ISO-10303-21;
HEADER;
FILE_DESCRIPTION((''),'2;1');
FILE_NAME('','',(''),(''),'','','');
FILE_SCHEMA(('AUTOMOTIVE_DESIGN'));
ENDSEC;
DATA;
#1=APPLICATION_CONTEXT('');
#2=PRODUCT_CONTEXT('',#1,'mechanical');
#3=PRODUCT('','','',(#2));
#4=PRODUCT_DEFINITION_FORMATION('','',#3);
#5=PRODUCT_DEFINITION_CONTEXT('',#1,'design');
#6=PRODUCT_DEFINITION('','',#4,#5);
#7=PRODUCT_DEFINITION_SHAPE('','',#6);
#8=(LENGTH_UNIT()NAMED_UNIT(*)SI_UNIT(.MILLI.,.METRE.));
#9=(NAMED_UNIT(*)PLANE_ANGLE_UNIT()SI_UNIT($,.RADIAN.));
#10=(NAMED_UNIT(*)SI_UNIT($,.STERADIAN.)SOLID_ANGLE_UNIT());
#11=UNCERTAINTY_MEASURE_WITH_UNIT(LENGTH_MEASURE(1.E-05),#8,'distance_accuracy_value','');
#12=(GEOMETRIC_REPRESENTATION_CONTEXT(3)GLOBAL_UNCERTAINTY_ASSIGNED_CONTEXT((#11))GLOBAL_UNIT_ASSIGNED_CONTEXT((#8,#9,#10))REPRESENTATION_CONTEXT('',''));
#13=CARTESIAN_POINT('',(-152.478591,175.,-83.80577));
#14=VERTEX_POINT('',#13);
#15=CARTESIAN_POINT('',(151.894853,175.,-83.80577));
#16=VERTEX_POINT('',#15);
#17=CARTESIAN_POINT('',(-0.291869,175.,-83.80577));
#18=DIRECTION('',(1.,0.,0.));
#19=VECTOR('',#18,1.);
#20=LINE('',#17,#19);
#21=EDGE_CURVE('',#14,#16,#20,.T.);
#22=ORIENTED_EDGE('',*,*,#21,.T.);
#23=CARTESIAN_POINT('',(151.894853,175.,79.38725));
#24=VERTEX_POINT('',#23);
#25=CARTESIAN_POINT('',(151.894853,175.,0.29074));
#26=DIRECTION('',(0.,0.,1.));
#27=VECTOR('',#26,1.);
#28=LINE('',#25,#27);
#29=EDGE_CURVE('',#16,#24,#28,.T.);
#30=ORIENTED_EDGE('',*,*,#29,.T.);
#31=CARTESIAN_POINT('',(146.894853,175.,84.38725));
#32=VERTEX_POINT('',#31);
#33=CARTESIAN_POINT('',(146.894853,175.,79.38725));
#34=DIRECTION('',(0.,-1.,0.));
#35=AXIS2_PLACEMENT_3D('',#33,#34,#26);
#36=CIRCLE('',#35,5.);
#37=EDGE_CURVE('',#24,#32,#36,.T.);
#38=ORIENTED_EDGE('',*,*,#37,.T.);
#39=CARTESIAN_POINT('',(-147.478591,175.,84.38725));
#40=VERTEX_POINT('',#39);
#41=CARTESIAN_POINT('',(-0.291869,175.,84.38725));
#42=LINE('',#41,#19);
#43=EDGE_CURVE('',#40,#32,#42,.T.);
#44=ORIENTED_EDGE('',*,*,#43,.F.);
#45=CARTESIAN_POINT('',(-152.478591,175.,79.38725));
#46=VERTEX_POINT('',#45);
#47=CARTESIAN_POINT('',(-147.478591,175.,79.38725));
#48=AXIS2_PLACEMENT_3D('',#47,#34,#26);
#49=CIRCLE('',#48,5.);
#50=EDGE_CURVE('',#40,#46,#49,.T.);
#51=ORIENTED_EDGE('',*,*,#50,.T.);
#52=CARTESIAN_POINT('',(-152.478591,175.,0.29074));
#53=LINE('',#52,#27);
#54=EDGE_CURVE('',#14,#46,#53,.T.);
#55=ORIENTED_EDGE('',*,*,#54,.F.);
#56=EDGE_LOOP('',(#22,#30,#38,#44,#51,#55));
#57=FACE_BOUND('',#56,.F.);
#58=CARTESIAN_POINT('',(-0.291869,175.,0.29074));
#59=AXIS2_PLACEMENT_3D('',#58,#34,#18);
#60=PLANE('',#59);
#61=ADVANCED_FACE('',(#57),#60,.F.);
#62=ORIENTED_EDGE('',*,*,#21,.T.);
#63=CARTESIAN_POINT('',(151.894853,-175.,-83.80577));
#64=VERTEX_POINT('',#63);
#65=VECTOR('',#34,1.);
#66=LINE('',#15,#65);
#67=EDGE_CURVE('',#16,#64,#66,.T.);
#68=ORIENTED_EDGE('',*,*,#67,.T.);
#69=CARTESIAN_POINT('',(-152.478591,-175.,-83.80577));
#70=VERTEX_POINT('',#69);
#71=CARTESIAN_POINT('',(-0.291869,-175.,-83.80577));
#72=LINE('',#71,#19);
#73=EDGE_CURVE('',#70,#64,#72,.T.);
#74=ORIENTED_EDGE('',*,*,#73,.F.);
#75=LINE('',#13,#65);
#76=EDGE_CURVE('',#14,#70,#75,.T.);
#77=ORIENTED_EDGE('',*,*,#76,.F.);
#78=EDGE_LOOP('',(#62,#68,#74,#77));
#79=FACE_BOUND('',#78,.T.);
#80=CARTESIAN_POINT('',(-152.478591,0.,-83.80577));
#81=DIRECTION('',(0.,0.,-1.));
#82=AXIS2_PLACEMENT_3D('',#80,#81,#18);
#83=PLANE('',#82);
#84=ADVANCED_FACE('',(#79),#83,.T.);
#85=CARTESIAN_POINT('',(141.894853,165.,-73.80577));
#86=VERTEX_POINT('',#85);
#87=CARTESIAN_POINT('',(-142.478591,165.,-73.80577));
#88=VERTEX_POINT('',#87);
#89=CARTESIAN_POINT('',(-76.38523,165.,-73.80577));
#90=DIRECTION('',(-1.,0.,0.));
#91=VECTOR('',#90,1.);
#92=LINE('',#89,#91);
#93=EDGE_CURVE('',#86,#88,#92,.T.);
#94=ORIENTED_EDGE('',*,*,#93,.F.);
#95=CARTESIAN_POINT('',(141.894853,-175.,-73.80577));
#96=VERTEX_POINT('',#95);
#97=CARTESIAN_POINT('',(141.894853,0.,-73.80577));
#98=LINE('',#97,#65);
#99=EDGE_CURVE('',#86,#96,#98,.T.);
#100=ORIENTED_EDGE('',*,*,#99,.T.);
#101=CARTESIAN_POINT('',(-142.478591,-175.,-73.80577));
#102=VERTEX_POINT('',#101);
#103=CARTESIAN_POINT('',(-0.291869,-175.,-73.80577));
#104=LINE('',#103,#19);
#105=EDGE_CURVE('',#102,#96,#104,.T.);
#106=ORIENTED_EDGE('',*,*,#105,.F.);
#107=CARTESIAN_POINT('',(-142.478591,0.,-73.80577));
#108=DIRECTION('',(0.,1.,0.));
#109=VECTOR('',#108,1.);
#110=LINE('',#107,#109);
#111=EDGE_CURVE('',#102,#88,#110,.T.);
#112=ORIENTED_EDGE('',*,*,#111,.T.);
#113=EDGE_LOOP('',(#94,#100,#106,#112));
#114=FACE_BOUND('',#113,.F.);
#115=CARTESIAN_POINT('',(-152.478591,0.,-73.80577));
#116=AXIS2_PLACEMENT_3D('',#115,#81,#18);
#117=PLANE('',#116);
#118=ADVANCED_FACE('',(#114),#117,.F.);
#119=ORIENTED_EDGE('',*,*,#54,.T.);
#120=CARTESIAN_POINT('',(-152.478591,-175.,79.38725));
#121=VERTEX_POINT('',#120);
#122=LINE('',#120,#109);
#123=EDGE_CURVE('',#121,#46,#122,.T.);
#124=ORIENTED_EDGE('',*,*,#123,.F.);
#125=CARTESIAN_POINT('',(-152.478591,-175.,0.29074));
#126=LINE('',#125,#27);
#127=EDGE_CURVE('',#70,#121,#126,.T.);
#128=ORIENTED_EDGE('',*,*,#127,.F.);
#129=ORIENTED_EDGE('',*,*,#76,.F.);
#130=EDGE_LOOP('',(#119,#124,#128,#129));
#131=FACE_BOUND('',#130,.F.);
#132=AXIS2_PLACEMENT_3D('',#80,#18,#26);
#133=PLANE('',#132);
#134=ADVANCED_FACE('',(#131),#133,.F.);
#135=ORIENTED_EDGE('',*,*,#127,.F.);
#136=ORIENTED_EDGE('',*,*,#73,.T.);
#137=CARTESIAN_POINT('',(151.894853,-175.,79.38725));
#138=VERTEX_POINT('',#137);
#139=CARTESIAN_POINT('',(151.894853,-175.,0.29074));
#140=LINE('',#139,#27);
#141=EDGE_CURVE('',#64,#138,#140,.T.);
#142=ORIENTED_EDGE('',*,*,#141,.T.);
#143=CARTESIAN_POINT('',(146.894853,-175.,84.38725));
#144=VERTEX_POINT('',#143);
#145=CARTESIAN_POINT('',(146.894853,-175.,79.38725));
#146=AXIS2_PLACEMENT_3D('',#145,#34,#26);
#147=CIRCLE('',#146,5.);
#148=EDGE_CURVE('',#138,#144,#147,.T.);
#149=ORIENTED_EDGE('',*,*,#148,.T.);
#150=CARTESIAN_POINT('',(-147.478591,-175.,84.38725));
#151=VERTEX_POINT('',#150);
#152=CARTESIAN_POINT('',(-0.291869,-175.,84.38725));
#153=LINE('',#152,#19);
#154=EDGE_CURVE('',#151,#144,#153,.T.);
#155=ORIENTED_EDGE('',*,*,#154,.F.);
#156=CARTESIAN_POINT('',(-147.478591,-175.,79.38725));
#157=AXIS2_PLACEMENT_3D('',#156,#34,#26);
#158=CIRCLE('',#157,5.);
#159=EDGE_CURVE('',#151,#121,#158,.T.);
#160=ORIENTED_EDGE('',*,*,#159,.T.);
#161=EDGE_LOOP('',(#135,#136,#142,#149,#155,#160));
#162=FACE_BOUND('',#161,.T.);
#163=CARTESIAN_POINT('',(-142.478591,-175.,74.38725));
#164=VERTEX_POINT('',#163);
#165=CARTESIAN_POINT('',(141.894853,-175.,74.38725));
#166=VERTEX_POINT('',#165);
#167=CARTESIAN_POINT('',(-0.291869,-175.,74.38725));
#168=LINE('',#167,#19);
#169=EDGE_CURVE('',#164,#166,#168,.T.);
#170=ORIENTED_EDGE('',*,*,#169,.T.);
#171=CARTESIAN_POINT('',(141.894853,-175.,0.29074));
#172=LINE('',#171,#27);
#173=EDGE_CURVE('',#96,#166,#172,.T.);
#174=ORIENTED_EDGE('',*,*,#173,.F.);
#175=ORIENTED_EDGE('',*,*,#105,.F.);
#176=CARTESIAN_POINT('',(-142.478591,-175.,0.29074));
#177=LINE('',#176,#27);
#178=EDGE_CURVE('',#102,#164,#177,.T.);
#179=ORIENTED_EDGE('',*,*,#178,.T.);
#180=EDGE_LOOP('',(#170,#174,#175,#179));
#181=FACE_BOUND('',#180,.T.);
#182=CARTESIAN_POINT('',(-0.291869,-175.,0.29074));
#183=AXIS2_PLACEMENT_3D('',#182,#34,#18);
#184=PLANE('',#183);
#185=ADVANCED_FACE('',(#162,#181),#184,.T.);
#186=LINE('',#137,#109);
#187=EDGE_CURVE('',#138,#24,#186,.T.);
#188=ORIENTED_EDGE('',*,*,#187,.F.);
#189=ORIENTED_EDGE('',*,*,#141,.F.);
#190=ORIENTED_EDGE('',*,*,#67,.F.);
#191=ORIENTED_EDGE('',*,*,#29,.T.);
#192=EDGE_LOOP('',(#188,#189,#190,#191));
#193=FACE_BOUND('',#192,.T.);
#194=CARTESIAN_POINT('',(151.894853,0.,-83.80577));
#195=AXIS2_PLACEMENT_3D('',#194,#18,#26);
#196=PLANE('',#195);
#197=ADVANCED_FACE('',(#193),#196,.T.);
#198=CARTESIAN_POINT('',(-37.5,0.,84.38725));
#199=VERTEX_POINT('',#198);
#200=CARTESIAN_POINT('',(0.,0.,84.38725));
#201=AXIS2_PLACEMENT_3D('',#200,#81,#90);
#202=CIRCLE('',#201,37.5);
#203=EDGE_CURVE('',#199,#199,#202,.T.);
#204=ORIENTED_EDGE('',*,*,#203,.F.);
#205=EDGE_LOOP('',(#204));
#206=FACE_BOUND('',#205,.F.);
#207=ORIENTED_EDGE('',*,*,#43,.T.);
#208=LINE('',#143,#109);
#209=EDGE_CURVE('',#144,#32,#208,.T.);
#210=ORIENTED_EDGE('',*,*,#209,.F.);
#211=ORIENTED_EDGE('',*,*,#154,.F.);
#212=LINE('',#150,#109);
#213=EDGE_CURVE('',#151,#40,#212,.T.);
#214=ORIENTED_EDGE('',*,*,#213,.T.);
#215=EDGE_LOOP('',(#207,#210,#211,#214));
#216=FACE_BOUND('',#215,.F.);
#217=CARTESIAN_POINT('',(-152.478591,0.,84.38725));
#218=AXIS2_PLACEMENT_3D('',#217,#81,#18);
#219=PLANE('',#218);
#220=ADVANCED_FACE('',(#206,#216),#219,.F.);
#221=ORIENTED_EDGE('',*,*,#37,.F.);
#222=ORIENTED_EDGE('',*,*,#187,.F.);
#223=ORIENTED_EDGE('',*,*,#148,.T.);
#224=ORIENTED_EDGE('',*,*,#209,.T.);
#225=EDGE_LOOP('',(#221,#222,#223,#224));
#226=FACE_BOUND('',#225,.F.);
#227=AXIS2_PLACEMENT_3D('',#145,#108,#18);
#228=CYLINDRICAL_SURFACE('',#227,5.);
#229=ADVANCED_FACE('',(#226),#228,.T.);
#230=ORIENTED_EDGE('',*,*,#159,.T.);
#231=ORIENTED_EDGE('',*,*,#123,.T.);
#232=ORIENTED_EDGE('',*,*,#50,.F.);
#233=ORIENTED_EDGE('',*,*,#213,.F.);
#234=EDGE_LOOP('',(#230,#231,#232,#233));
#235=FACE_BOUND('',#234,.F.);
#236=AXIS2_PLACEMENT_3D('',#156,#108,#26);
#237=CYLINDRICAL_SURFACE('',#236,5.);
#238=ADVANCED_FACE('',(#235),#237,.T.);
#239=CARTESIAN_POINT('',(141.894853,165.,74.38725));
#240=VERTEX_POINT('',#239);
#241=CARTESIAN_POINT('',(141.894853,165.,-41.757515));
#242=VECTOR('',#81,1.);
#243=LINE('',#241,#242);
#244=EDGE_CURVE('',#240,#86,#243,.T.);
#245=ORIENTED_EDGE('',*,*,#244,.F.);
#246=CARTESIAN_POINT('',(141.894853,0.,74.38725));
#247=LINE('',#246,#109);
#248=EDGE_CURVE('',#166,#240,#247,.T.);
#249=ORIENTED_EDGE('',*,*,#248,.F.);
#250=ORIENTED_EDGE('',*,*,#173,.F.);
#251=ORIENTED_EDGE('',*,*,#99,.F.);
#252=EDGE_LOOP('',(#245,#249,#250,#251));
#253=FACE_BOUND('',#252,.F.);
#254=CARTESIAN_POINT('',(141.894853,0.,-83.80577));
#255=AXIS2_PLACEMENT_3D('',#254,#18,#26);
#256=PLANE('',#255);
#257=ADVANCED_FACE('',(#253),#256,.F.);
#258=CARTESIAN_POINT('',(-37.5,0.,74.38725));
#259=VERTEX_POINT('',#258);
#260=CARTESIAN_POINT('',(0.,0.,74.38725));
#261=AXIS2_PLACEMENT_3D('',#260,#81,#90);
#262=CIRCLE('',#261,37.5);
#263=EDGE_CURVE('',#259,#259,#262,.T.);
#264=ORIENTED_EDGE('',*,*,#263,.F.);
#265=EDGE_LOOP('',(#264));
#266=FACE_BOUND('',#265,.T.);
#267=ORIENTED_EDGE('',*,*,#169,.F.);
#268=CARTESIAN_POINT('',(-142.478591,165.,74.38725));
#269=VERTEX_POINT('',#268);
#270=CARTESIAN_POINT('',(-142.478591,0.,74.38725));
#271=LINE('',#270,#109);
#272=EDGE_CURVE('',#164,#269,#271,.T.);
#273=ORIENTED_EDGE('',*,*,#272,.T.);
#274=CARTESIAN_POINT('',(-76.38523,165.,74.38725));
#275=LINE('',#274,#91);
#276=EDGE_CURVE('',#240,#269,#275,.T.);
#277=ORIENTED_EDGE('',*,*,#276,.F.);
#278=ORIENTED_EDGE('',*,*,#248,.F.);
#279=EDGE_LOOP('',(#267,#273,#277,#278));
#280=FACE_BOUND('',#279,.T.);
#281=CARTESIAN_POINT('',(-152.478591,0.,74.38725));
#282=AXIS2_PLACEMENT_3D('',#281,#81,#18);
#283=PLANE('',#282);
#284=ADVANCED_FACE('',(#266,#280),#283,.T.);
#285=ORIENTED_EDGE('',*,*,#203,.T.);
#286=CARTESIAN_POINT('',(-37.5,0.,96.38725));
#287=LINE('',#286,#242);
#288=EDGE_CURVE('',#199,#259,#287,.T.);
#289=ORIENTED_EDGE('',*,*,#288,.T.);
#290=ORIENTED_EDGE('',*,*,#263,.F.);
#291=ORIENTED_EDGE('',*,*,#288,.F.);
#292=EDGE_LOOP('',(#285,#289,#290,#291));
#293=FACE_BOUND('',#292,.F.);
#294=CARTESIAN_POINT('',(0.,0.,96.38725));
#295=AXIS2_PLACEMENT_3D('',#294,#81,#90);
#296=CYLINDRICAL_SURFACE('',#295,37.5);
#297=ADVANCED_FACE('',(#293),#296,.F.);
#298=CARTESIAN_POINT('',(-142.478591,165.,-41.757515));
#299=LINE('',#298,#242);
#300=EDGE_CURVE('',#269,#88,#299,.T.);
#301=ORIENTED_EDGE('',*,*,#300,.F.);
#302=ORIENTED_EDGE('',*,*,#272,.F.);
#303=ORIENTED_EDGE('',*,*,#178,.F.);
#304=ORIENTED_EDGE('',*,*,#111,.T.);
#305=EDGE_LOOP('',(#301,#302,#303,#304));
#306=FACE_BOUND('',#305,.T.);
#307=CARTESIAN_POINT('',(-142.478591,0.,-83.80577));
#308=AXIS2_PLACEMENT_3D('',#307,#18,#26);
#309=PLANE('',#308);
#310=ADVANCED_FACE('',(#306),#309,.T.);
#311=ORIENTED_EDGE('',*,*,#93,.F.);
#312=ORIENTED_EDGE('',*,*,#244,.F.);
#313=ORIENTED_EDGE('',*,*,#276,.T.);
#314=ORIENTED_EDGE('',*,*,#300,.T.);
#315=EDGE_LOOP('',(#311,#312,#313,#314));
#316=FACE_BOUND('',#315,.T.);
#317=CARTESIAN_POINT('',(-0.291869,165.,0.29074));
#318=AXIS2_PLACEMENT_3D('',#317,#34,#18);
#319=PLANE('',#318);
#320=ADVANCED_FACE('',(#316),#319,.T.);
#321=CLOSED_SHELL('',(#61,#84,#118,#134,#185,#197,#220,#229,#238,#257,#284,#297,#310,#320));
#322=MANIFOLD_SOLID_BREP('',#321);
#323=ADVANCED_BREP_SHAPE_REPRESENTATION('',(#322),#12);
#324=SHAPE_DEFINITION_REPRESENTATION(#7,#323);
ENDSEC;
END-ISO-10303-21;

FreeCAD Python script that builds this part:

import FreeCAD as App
import Part
import Sketcher
from FreeCAD import Vector
Q = App.Units.Quantity


def edges_at(feature, points):
    """Names of the edges that pass closest to the given points."""
    edges = feature.Shape.Edges
    near = lambda p: min(range(len(edges)), key=lambda i: edges[i].distToShape(Part.Vertex(*p))[0])
    return sorted({f"Edge{near(p) + 1}" for p in points})


def faces_at(feature, points):
    """Names of the faces that lie closest to the given points."""
    faces = feature.Shape.Faces
    near = lambda p: min(range(len(faces)), key=lambda i: faces[i].distToShape(Part.Vertex(*p))[0])
    return sorted({f"Face{near(p) + 1}" for p in points})


def add_polygon(sketch, points):
    """Adds a closed chain of lines whose ends are joined by coincident constraints."""
    first, n = sketch.GeometryCount, len(points)
    for a, b in zip(points, points[1:] + points[:1]):
        sketch.addGeometry(Part.LineSegment(App.Vector(*a, 0), App.Vector(*b, 0)), False)
    for i in range(n):
        sketch.addConstraint(Sketcher.Constraint("Coincident", first + i, 2, first + (i + 1) % n, 1))

doc = App.newDocument("Part")
body = doc.addObject("PartDesign::Body", "Body")

# Sketch on XZ plane
sketch1 = body.newObject("Sketcher::SketchObject", "Sketch")
sketch1.AttachmentSupport = (doc.getObject("XZ_Plane"), [""])
sketch1.MapMode = "FlatFace"
add_polygon(sketch1, [(-152, 84), (-152, -84), (152, -84), (152, 84)])  # lines 0-3
sketch1.addConstraint([
    Sketcher.Constraint("Vertical", 0),
    Sketcher.Constraint("Horizontal", 1),
    Sketcher.Constraint("Vertical", 2),
    Sketcher.Constraint("Horizontal", 3),
    Sketcher.Constraint("DistanceY", 0, 2, 0, 1, Q("168.19302 mm")),
    Sketcher.Constraint("DistanceX", 1, 1, 1, 2, Q("304.373444 mm")),
    Sketcher.Constraint("DistanceX", 0, 2, -1, 1, Q("152.478591 mm")),
    Sketcher.Constraint("DistanceY", 0, 2, -1, 1, Q("83.80577 mm")),
])
pad1 = body.newObject("PartDesign::Pad", "Pad")
pad1.Profile = sketch1
pad1.Length = 350
pad1.Midplane = True
doc.recompute()

thickness = body.newObject("PartDesign::Thickness", "Thickness")
thickness.Base = (pad1, faces_at(pad1, [(-0.292, -175, 0.291)]))
thickness.Value = 10
thickness.Reversed = True
thickness.Join = "Arc"

# Sketch on XY plane
sketch2 = body.newObject("Sketcher::SketchObject", "Sketch001")
sketch2.AttachmentSupport = (doc.getObject("XY_Plane"), [""])
sketch2.MapMode = "FlatFace"
sketch2.AttachmentOffset = App.Placement(Vector(0, 0, 84.38725), App.Rotation())
sketch2.addGeometry(Part.Circle(Vector(0, 0, 0), Vector(0, 0, 1), 38), False)
sketch2.addConstraint([
    Sketcher.Constraint("Coincident", 0, 3, -1, 1),
    Sketcher.Constraint("Diameter", 0, Q("75 mm")),
])
doc.recompute()
hole = body.newObject("PartDesign::Hole", "Hole")
hole.Profile = sketch2
hole.ThreadType = "None"
hole.Diameter = 75
hole.DepthType = "Dimension"
hole.Depth = 12
hole.DrillPoint = "Flat"
doc.recompute()

fillet = body.newObject("PartDesign::Fillet", "Fillet")
fillet.Base = (hole, edges_at(hole, [(-152.479, 0, 84.387), (151.895, 0, 84.387)]))
fillet.Radius = 5

doc.recompute()
